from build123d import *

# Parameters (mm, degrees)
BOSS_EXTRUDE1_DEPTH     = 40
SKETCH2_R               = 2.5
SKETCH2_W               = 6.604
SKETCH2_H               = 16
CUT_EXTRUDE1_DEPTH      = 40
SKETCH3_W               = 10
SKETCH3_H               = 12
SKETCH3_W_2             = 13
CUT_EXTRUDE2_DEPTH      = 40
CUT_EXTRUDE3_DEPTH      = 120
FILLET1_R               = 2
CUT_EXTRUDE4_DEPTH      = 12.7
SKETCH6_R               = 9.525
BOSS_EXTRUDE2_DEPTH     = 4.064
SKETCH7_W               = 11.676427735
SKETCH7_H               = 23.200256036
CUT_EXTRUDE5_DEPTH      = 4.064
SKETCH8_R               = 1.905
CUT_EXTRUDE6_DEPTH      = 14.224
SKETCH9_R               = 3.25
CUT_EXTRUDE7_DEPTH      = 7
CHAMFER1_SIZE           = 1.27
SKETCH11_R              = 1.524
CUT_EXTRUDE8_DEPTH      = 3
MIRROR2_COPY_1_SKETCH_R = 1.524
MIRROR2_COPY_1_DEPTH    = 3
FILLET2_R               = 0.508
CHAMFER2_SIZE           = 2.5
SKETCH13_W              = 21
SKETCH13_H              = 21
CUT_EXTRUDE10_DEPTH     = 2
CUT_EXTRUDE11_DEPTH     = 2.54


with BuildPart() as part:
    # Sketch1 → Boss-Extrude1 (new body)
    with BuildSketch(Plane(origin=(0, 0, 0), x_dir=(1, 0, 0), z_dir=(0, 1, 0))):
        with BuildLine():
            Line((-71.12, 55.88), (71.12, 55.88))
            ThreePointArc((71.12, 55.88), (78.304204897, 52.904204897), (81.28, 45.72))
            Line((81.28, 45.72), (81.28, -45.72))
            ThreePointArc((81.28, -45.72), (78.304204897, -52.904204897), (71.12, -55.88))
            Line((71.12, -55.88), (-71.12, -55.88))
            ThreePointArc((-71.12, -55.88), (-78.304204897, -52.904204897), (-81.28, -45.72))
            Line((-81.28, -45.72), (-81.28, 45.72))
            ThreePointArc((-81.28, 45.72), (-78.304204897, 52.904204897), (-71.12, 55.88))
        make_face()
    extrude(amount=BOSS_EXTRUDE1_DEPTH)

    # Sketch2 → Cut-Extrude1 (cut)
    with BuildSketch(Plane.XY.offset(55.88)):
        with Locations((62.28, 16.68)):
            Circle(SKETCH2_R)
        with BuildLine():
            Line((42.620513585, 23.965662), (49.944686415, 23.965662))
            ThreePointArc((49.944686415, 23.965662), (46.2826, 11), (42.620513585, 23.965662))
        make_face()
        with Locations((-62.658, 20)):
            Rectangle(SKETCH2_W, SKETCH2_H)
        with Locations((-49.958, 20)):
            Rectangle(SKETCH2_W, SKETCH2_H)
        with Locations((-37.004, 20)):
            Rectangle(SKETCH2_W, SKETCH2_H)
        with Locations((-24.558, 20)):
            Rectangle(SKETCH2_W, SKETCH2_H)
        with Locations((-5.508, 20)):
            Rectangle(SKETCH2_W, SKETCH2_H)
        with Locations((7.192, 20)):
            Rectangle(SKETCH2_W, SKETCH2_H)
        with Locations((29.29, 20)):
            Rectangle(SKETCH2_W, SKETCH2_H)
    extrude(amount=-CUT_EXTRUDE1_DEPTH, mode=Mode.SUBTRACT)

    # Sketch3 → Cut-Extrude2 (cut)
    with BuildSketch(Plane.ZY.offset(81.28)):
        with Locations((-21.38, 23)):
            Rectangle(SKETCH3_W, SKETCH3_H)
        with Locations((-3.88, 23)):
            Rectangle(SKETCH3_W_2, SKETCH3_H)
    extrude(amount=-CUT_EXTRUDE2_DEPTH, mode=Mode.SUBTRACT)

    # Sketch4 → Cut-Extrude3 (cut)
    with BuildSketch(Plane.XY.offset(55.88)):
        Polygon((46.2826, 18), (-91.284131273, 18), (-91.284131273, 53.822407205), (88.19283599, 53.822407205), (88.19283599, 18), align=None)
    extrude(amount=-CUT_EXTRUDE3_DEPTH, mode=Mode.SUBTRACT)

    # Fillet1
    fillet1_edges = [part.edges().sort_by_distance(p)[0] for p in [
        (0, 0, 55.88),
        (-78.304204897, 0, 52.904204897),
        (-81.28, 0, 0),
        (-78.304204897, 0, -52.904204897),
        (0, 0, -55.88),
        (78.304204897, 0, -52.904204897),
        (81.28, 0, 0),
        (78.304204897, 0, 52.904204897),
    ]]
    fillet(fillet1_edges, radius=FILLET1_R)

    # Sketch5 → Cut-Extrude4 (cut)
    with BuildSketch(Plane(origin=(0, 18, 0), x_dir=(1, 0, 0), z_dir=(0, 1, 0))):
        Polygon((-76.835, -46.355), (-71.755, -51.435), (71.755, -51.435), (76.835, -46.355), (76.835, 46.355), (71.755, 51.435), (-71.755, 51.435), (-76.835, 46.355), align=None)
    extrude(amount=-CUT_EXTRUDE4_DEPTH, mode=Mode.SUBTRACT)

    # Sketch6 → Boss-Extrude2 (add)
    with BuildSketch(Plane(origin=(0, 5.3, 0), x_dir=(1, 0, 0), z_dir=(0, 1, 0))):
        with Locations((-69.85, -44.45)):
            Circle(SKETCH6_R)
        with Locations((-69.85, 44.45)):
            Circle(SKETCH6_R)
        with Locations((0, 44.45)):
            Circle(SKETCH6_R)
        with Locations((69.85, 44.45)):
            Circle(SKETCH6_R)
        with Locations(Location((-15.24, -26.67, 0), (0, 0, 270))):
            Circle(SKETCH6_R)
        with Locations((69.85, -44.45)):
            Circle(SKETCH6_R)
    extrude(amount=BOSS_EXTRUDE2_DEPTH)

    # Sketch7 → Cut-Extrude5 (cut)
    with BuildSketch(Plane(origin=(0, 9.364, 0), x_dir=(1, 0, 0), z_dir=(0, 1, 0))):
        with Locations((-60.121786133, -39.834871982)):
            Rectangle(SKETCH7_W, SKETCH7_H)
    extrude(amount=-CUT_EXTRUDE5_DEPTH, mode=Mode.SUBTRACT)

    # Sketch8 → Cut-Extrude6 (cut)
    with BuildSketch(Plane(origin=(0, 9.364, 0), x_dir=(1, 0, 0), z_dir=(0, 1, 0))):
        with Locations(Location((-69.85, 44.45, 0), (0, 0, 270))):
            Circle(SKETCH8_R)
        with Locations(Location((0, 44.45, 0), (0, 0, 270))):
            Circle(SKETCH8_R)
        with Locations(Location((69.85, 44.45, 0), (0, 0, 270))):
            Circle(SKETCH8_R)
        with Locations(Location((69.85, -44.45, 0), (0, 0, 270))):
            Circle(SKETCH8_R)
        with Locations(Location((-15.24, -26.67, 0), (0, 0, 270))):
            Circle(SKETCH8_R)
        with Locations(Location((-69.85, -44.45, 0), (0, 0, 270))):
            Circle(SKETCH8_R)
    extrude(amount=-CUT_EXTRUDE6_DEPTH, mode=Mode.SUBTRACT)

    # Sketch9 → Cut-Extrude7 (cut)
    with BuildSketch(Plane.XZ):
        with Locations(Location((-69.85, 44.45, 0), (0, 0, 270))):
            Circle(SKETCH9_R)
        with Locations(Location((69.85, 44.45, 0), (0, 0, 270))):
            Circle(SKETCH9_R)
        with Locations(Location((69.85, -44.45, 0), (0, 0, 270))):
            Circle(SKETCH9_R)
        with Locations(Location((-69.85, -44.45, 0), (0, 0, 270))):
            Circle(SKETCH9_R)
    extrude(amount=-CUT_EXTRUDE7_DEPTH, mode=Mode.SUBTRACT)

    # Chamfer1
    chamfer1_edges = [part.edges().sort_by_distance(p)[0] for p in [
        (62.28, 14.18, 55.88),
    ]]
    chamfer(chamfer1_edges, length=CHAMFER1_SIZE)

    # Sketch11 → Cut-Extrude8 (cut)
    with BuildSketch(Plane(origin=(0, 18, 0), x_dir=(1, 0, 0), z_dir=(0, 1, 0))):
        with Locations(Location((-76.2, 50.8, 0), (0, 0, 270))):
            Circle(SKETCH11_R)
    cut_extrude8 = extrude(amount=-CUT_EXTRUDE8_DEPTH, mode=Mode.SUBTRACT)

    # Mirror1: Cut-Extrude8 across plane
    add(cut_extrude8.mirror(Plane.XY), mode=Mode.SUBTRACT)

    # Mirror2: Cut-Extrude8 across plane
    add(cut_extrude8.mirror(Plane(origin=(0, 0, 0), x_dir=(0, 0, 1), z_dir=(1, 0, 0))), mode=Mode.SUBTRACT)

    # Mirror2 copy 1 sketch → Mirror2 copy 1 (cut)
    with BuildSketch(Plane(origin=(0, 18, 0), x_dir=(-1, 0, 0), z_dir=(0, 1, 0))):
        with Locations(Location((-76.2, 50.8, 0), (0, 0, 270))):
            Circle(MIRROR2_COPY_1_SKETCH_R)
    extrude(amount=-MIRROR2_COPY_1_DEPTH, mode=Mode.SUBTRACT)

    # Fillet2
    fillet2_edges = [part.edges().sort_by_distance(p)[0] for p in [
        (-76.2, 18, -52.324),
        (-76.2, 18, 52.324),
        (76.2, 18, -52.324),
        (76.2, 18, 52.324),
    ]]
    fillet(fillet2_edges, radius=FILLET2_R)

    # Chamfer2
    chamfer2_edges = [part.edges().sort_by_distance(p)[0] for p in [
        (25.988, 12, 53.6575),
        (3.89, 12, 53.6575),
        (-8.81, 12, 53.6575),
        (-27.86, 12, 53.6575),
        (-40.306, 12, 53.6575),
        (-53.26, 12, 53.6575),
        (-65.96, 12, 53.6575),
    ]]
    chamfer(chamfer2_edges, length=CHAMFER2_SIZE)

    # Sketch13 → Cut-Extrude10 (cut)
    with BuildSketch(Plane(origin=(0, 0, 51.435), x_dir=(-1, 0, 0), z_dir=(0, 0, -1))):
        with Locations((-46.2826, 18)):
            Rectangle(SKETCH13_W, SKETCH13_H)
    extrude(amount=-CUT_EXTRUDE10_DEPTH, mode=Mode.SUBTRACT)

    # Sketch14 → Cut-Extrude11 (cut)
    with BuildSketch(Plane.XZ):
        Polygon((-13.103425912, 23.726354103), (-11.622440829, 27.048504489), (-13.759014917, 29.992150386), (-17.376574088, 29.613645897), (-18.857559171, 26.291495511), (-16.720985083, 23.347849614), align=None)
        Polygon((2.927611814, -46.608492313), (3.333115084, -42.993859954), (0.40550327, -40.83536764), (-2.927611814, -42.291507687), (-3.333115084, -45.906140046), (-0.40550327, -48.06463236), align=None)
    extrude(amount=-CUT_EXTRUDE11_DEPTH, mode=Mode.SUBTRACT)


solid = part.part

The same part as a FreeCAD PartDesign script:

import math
import FreeCAD as App
import Part
import Sketcher
from FreeCAD import Vector
Q = App.Units.Quantity


def edges_at(feature, points):
    """Names of the edges that pass closest to the given points."""
    edges = feature.Shape.Edges
    near = lambda p: min(range(len(edges)), key=lambda i: edges[i].distToShape(Part.Vertex(*p))[0])
    return sorted({f"Edge{near(p) + 1}" for p in points})

doc = App.newDocument("Part")
params = doc.addObject("Spreadsheet::Sheet", "Params")
for row, (alias, value) in enumerate([
    ("sketch1_radius", "0.4 in"),
    ("sketch1_width", "5.6 in"),
    ("sketch1_height", "3.6 in"),
    ("pad1_length", "40 mm"),
    ("sketch2_width", "0.26 in"),
    ("pocket1_length", "40 mm"),
    ("pocket2_length", "40 mm"),
    ("pocket3_length", "120 mm"),
    ("fillet_radius", "2 mm"),
    ("sketch5_width", "5.65 in"),
    ("sketch5_height", "3.65 in"),
    ("pocket4_length", "0.5 in"),
    ("sketch6_diameter", "0.75 in"),
    ("pad2_length", "0.16 in"),
    ("pocket5_length", "0.16 in"),
    ("sketch8_diameter", "0.15 in"),
    ("pocket6_length", "0.56 in"),
    ("pocket7_length", "7 mm"),
    ("chamfer_size", "0.05 in"),
    ("sketch10_diameter", "0.12 in"),
    ("pocket8_length", "3 mm"),
    ("sketch11_diameter", "0.12 in"),
    ("pocket9_length", "3 mm"),
    ("fillet2_radius", "0.02 in"),
    ("chamfer2_size", "2.5 mm"),
    ("pocket10_length", "2 mm"),
    ("pocket11_length", "0.1 in"),
], start=1):
    params.set(f"A{row}", alias)
    params.set(f"B{row}", "=" + value)
    params.setAlias(f"B{row}", alias)

body = doc.addObject("PartDesign::Body", "Body")

sketch1 = doc.addObject("Sketcher::SketchObject", "Sketch")
body.addObject(sketch1)
sketch1.AttachmentSupport = (doc.XZ_Plane, [""])
sketch1.MapMode = "FlatFace"
sketch1.addGeometry(Part.LineSegment(Vector(71.12, -55.88, 0), Vector(-71.12, -55.88, 0)), False)
sketch1.addGeometry(Part.ArcOfCircle(Part.Circle(Vector(-71.12, -45.72, 0), Vector(0, 0, 1), 10.16), math.radians(180), math.radians(270)), False)
sketch1.addGeometry(Part.LineSegment(Vector(-81.28, -45.72, 0), Vector(-81.28, 45.72, 0)), False)
sketch1.addGeometry(Part.ArcOfCircle(Part.Circle(Vector(-71.12, 45.72, 0), Vector(0, 0, 1), 10.16), math.radians(90), math.radians(180)), False)
sketch1.addGeometry(Part.LineSegment(Vector(-71.12, 55.88, 0), Vector(71.12, 55.88, 0)), False)
sketch1.addGeometry(Part.ArcOfCircle(Part.Circle(Vector(71.12, 45.72, 0), Vector(0, 0, 1), 10.16), math.radians(0), math.radians(90)), False)
sketch1.addGeometry(Part.LineSegment(Vector(81.28, 45.72, 0), Vector(81.28, -45.72, 0)), False)
sketch1.addGeometry(Part.ArcOfCircle(Part.Circle(Vector(71.12, -45.72, 0), Vector(0, 0, 1), 10.16), math.radians(-90), math.radians(0)), False)
sketch1.addConstraint(Sketcher.Constraint("Tangent", 0, 2, 1, 2))
sketch1.addConstraint(Sketcher.Constraint("Tangent", 1, 1, 2, 1))
sketch1.addConstraint(Sketcher.Constraint("Tangent", 2, 2, 3, 2))
sketch1.addConstraint(Sketcher.Constraint("Tangent", 3, 1, 4, 1))
sketch1.addConstraint(Sketcher.Constraint("Tangent", 4, 2, 5, 2))
sketch1.addConstraint(Sketcher.Constraint("Tangent", 5, 1, 6, 1))
sketch1.addConstraint(Sketcher.Constraint("Tangent", 6, 2, 7, 2))
sketch1.addConstraint(Sketcher.Constraint("Tangent", 7, 1, 0, 1))
sketch1.addConstraint(Sketcher.Constraint("Horizontal", 0))
sketch1.addConstraint(Sketcher.Constraint("Vertical", 2))
sketch1.addConstraint(Sketcher.Constraint("Horizontal", 4))
sketch1.addConstraint(Sketcher.Constraint("Vertical", 6))
sketch1.addConstraint(Sketcher.Constraint("Equal", 1, 3))
sketch1.addConstraint(Sketcher.Constraint("Equal", 3, 5))
sketch1.addConstraint(Sketcher.Constraint("Equal", 5, 7))
sketch1.addConstraint(Sketcher.Constraint("Symmetric", 1, 3, 5, 3, -1, 1))
sketch1.addConstraint(Sketcher.Constraint("Radius", 1, Q("0.4 in")))
sketch1.addConstraint(Sketcher.Constraint("DistanceX", 0, 2, 0, 1, Q("5.6 in")))
sketch1.addConstraint(Sketcher.Constraint("DistanceY", 2, 1, 2, 2, Q("3.6 in")))
sketch1.setExpression("Constraints[16]", "Params.sketch1_radius")
sketch1.setExpression("Constraints[17]", "Params.sketch1_width")
sketch1.setExpression("Constraints[18]", "Params.sketch1_height")
pad1 = doc.addObject("PartDesign::Pad", "Pad")
body.addObject(pad1)
pad1.Profile = sketch1
pad1.setExpression("Length", "Params.pad1_length")
pad1.Reversed = True

sketch2 = doc.addObject("Sketcher::SketchObject", "Sketch001")
body.addObject(sketch2)
sketch2.AttachmentSupport = (doc.XY_Plane, [""])
sketch2.MapMode = "FlatFace"
sketch2.AttachmentOffset = App.Placement(Vector(0, 0, 2.2 * 25.4), App.Rotation())
sketch2.addGeometry(Part.Circle(Vector(62.28, 16.68, 0), Vector(0, 0, 1), 2.5), False)
sketch2.addGeometry(Part.LineSegment(Vector(49.944686, 23.965662, 0), Vector(42.620514, 23.965662, 0)), False)
sketch2.addGeometry(Part.ArcOfCircle(Part.Circle(Vector(46.2826, 18, 0), Vector(0, 0, 1), 7), math.radians(121.544135), math.radians(418.455865)), False)
sketch2.addGeometry(Part.LineSegment(Vector(-65.96, 28, 0), Vector(-65.96, 12, 0)), False)
sketch2.addGeometry(Part.LineSegment(Vector(-65.96, 12, 0), Vector(-59.356, 12, 0)), False)
sketch2.addGeometry(Part.LineSegment(Vector(-59.356, 12, 0), Vector(-59.356, 28, 0)), False)
sketch2.addGeometry(Part.LineSegment(Vector(-59.356, 28, 0), Vector(-65.96, 28, 0)), False)
sketch2.addGeometry(Part.LineSegment(Vector(-53.26, 28, 0), Vector(-53.26, 12, 0)), False)
sketch2.addGeometry(Part.LineSegment(Vector(-53.26, 12, 0), Vector(-46.656, 12, 0)), False)
sketch2.addGeometry(Part.LineSegment(Vector(-46.656, 12, 0), Vector(-46.656, 28, 0)), False)
sketch2.addGeometry(Part.LineSegment(Vector(-46.656, 28, 0), Vector(-53.26, 28, 0)), False)
sketch2.addGeometry(Part.LineSegment(Vector(-40.306, 28, 0), Vector(-40.306, 12, 0)), False)
sketch2.addGeometry(Part.LineSegment(Vector(-40.306, 12, 0), Vector(-33.702, 12, 0)), False)
sketch2.addGeometry(Part.LineSegment(Vector(-33.702, 12, 0), Vector(-33.702, 28, 0)), False)
sketch2.addGeometry(Part.LineSegment(Vector(-33.702, 28, 0), Vector(-40.306, 28, 0)), False)
sketch2.addGeometry(Part.LineSegment(Vector(-27.86, 28, 0), Vector(-27.86, 12, 0)), False)
sketch2.addGeometry(Part.LineSegment(Vector(-27.86, 12, 0), Vector(-21.256, 12, 0)), False)
sketch2.addGeometry(Part.LineSegment(Vector(-21.256, 12, 0), Vector(-21.256, 28, 0)), False)
sketch2.addGeometry(Part.LineSegment(Vector(-21.256, 28, 0), Vector(-27.86, 28, 0)), False)
sketch2.addGeometry(Part.LineSegment(Vector(-8.81, 28, 0), Vector(-8.81, 12, 0)), False)
sketch2.addGeometry(Part.LineSegment(Vector(-8.81, 12, 0), Vector(-2.206, 12, 0)), False)
sketch2.addGeometry(Part.LineSegment(Vector(-2.206, 12, 0), Vector(-2.206, 28, 0)), False)
sketch2.addGeometry(Part.LineSegment(Vector(-2.206, 28, 0), Vector(-8.81, 28, 0)), False)
sketch2.addGeometry(Part.LineSegment(Vector(3.89, 28, 0), Vector(3.89, 12, 0)), False)
sketch2.addGeometry(Part.LineSegment(Vector(3.89, 12, 0), Vector(10.494, 12, 0)), False)
sketch2.addGeometry(Part.LineSegment(Vector(10.494, 12, 0), Vector(10.494, 28, 0)), False)
sketch2.addGeometry(Part.LineSegment(Vector(10.494, 28, 0), Vector(3.89, 28, 0)), False)
sketch2.addGeometry(Part.LineSegment(Vector(25.988, 28, 0), Vector(25.988, 12, 0)), False)
sketch2.addGeometry(Part.LineSegment(Vector(25.988, 12, 0), Vector(32.592, 12, 0)), False)
sketch2.addGeometry(Part.LineSegment(Vector(32.592, 12, 0), Vector(32.592, 28, 0)), False)
sketch2.addGeometry(Part.LineSegment(Vector(32.592, 28, 0), Vector(25.988, 28, 0)), False)
sketch2.addConstraint(Sketcher.Constraint("Coincident", 1, 1, 2, 2))
sketch2.addConstraint(Sketcher.Constraint("Coincident", 2, 1, 1, 2))
sketch2.addConstraint(Sketcher.Constraint("Coincident", 3, 2, 4, 1))
sketch2.addConstraint(Sketcher.Constraint("Coincident", 4, 2, 5, 1))
sketch2.addConstraint(Sketcher.Constraint("Coincident", 5, 2, 6, 1))
sketch2.addConstraint(Sketcher.Constraint("Coincident", 6, 2, 3, 1))
sketch2.addConstraint(Sketcher.Constraint("Coincident", 7, 2, 8, 1))
sketch2.addConstraint(Sketcher.Constraint("Coincident", 8, 2, 9, 1))
sketch2.addConstraint(Sketcher.Constraint("Coincident", 9, 2, 10, 1))
sketch2.addConstraint(Sketcher.Constraint("Coincident", 10, 2, 7, 1))
sketch2.addConstraint(Sketcher.Constraint("Coincident", 11, 2, 12, 1))
sketch2.addConstraint(Sketcher.Constraint("Coincident", 12, 2, 13, 1))
sketch2.addConstraint(Sketcher.Constraint("Coincident", 13, 2, 14, 1))
sketch2.addConstraint(Sketcher.Constraint("Coincident", 14, 2, 11, 1))
sketch2.addConstraint(Sketcher.Constraint("Coincident", 15, 2, 16, 1))
sketch2.addConstraint(Sketcher.Constraint("Coincident", 16, 2, 17, 1))
sketch2.addConstraint(Sketcher.Constraint("Coincident", 17, 2, 18, 1))
sketch2.addConstraint(Sketcher.Constraint("Coincident", 18, 2, 15, 1))
sketch2.addConstraint(Sketcher.Constraint("Coincident", 19, 2, 20, 1))
sketch2.addConstraint(Sketcher.Constraint("Coincident", 20, 2, 21, 1))
sketch2.addConstraint(Sketcher.Constraint("Coincident", 21, 2, 22, 1))
sketch2.addConstraint(Sketcher.Constraint("Coincident", 22, 2, 19, 1))
sketch2.addConstraint(Sketcher.Constraint("Coincident", 23, 2, 24, 1))
sketch2.addConstraint(Sketcher.Constraint("Coincident", 24, 2, 25, 1))
sketch2.addConstraint(Sketcher.Constraint("Coincident", 25, 2, 26, 1))
sketch2.addConstraint(Sketcher.Constraint("Coincident", 26, 2, 23, 1))
sketch2.addConstraint(Sketcher.Constraint("Coincident", 27, 2, 28, 1))
sketch2.addConstraint(Sketcher.Constraint("Coincident", 28, 2, 29, 1))
sketch2.addConstraint(Sketcher.Constraint("Coincident", 29, 2, 30, 1))
sketch2.addConstraint(Sketcher.Constraint("Coincident", 30, 2, 27, 1))
sketch2.addConstraint(Sketcher.Constraint("Horizontal", 1))
sketch2.addConstraint(Sketcher.Constraint("Vertical", 3))
sketch2.addConstraint(Sketcher.Constraint("Horizontal", 4))
sketch2.addConstraint(Sketcher.Constraint("Vertical", 5))
sketch2.addConstraint(Sketcher.Constraint("Horizontal", 6))
sketch2.addConstraint(Sketcher.Constraint("Vertical", 7))
sketch2.addConstraint(Sketcher.Constraint("Horizontal", 8))
sketch2.addConstraint(Sketcher.Constraint("Vertical", 9))
sketch2.addConstraint(Sketcher.Constraint("Horizontal", 10))
sketch2.addConstraint(Sketcher.Constraint("Vertical", 11))
sketch2.addConstraint(Sketcher.Constraint("Horizontal", 12))
sketch2.addConstraint(Sketcher.Constraint("Vertical", 13))
sketch2.addConstraint(Sketcher.Constraint("Horizontal", 14))
sketch2.addConstraint(Sketcher.Constraint("Vertical", 15))
sketch2.addConstraint(Sketcher.Constraint("Horizontal", 16))
sketch2.addConstraint(Sketcher.Constraint("Vertical", 17))
sketch2.addConstraint(Sketcher.Constraint("Horizontal", 18))
sketch2.addConstraint(Sketcher.Constraint("Vertical", 19))
sketch2.addConstraint(Sketcher.Constraint("Horizontal", 20))
sketch2.addConstraint(Sketcher.Constraint("Vertical", 21))
sketch2.addConstraint(Sketcher.Constraint("Horizontal", 22))
sketch2.addConstraint(Sketcher.Constraint("Vertical", 23))
sketch2.addConstraint(Sketcher.Constraint("Horizontal", 24))
sketch2.addConstraint(Sketcher.Constraint("Vertical", 25))
sketch2.addConstraint(Sketcher.Constraint("Horizontal", 26))
sketch2.addConstraint(Sketcher.Constraint("Vertical", 27))
sketch2.addConstraint(Sketcher.Constraint("Horizontal", 28))
sketch2.addConstraint(Sketcher.Constraint("Vertical", 29))
sketch2.addConstraint(Sketcher.Constraint("Horizontal", 30))
sketch2.addConstraint(Sketcher.Constraint("Horizontal", 4, 2, 7, 2))
sketch2.addConstraint(Sketcher.Constraint("Horizontal", 6, 2, 9, 2))
sketch2.addConstraint(Sketcher.Constraint("Horizontal", 8, 2, 11, 2))
sketch2.addConstraint(Sketcher.Constraint("Horizontal", 10, 2, 13, 2))
sketch2.addConstraint(Sketcher.Constraint("Horizontal", 12, 2, 15, 2))
sketch2.addConstraint(Sketcher.Constraint("Horizontal", 14, 2, 17, 2))
sketch2.addConstraint(Sketcher.Constraint("Horizontal", 16, 2, 19, 2))
sketch2.addConstraint(Sketcher.Constraint("Horizontal", 18, 2, 21, 2))
sketch2.addConstraint(Sketcher.Constraint("Horizontal", 20, 2, 23, 2))
sketch2.addConstraint(Sketcher.Constraint("Horizontal", 22, 2, 25, 2))
sketch2.addConstraint(Sketcher.Constraint("Horizontal", 24, 2, 27, 2))
sketch2.addConstraint(Sketcher.Constraint("Horizontal", 26, 2, 29, 2))
sketch2.addConstraint(Sketcher.Constraint("Equal", 6, 8))
sketch2.addConstraint(Sketcher.Constraint("Equal", 10, 12))
sketch2.addConstraint(Sketcher.Constraint("Equal", 14, 16))
sketch2.addConstraint(Sketcher.Constraint("Equal", 18, 20))
sketch2.addConstraint(Sketcher.Constraint("Equal", 22, 24))
sketch2.addConstraint(Sketcher.Constraint("Equal", 26, 28))
sketch2.addConstraint(Sketcher.Constraint("DistanceX", 4, 1, 4, 2, Q("0.26 in")))
sketch2.addConstraint(Sketcher.Constraint("DistanceX", 3, 2, 7, 2, Q("0.5 in")))
sketch2.addConstraint(Sketcher.Constraint("DistanceX", 19, 2, 23, 2, Q("0.5 in")))
sketch2.addConstraint(Sketcher.Constraint("Diameter", 0, Q("5 mm")))
sketch2.addConstraint(Sketcher.Constraint("Radius", 2, Q("7 mm")))
sketch2.addConstraint(Sketcher.Constraint("DistanceX", 8, 2, 11, 2, Q("0.25 in")))
sketch2.addConstraint(Sketcher.Constraint("DistanceX", 12, 2, 15, 2, Q("0.23 in")))
sketch2.addConstraint(Sketcher.Constraint("DistanceX", 16, 2, 19, 2, Q("0.49 in")))
sketch2.addConstraint(Sketcher.Constraint("DistanceX", 24, 2, 27, 2, Q("0.61 in")))
sketch2.addConstraint(Sketcher.Constraint("DistanceX", 3, 2, 2, 3, Q("4.419 in")))
sketch2.addConstraint(Sketcher.Constraint("DistanceY", 3, 2, 3, 1, Q("16 mm")))
sketch2.addConstraint(Sketcher.Constraint("DistanceX", -1, 1, 0, 3, Q("62.28 mm")))
sketch2.addConstraint(Sketcher.Constraint("DistanceY", -1, 1, 0, 3, Q("16.68 mm")))
sketch2.addConstraint(Sketcher.Constraint("DistanceX", -1, 1, 2, 3, Q("46.2826 mm")))
sketch2.addConstraint(Sketcher.Constraint("DistanceY", -1, 1, 2, 3, Q("18 mm")))
sketch2.addConstraint(Sketcher.Constraint("DistanceY", -1, 1, 3, 2, Q("12 mm")))
sketch2.addConstraint(Sketcher.Constraint("DistanceX", 1, 2, 1, 1, Q("7.324173 mm")))
sketch2.setExpression("Constraints[77]", "Params.sketch2_width")
pocket1 = doc.addObject("PartDesign::Pocket", "Pocket")
body.addObject(pocket1)
pocket1.Profile = sketch2
pocket1.setExpression("Length", "Params.pocket1_length")

sketch3 = doc.addObject("Sketcher::SketchObject", "Sketch002")
body.addObject(sketch3)
sketch3.AttachmentSupport = (doc.YZ_Plane, [""])
sketch3.MapMode = "FlatFace"
sketch3.AttachmentOffset = App.Placement(Vector(0, 0, -3.2 * 25.4), App.Rotation())
sketch3.addGeometry(Part.LineSegment(Vector(29, -26.38, 0), Vector(17, -26.38, 0)), False)
sketch3.addGeometry(Part.LineSegment(Vector(17, -26.38, 0), Vector(17, -16.38, 0)), False)
sketch3.addGeometry(Part.LineSegment(Vector(17, -16.38, 0), Vector(29, -16.38, 0)), False)
sketch3.addGeometry(Part.LineSegment(Vector(29, -16.38, 0), Vector(29, -26.38, 0)), False)
sketch3.addGeometry(Part.LineSegment(Vector(29, -10.38, 0), Vector(17, -10.38, 0)), False)
sketch3.addGeometry(Part.LineSegment(Vector(17, -10.38, 0), Vector(17, 2.62, 0)), False)
sketch3.addGeometry(Part.LineSegment(Vector(17, 2.62, 0), Vector(29, 2.62, 0)), False)
sketch3.addGeometry(Part.LineSegment(Vector(29, 2.62, 0), Vector(29, -10.38, 0)), False)
sketch3.addConstraint(Sketcher.Constraint("Coincident", 0, 2, 1, 1))
sketch3.addConstraint(Sketcher.Constraint("Coincident", 1, 2, 2, 1))
sketch3.addConstraint(Sketcher.Constraint("Coincident", 2, 2, 3, 1))
sketch3.addConstraint(Sketcher.Constraint("Coincident", 3, 2, 0, 1))
sketch3.addConstraint(Sketcher.Constraint("Coincident", 4, 2, 5, 1))
sketch3.addConstraint(Sketcher.Constraint("Coincident", 5, 2, 6, 1))
sketch3.addConstraint(Sketcher.Constraint("Coincident", 6, 2, 7, 1))
sketch3.addConstraint(Sketcher.Constraint("Coincident", 7, 2, 4, 1))
sketch3.addConstraint(Sketcher.Constraint("Horizontal", 0))
sketch3.addConstraint(Sketcher.Constraint("Vertical", 1))
sketch3.addConstraint(Sketcher.Constraint("Horizontal", 2))
sketch3.addConstraint(Sketcher.Constraint("Vertical", 3))
sketch3.addConstraint(Sketcher.Constraint("Horizontal", 4))
sketch3.addConstraint(Sketcher.Constraint("Vertical", 5))
sketch3.addConstraint(Sketcher.Constraint("Horizontal", 6))
sketch3.addConstraint(Sketcher.Constraint("Vertical", 7))
sketch3.addConstraint(Sketcher.Constraint("Vertical", 1, 2, 4, 2))
sketch3.addConstraint(Sketcher.Constraint("Vertical", 3, 2, 6, 2))
sketch3.addConstraint(Sketcher.Constraint("DistanceX", 0, 2, 0, 1, Q("12 mm")))
sketch3.addConstraint(Sketcher.Constraint("DistanceY", 1, 1, 1, 2, Q("10 mm")))
sketch3.addConstraint(Sketcher.Constraint("DistanceY", 5, 1, 5, 2, Q("13 mm")))
sketch3.addConstraint(Sketcher.Constraint("DistanceX", -1, 1, 0, 2, Q("17 mm")))
sketch3.addConstraint(Sketcher.Constraint("DistanceY", 0, 2, -1, 1, Q("26.38 mm")))
sketch3.addConstraint(Sketcher.Constraint("DistanceY", 4, 2, -1, 1, Q("10.38 mm")))
pocket2 = doc.addObject("PartDesign::Pocket", "Pocket001")
body.addObject(pocket2)
pocket2.Profile = sketch3
pocket2.setExpression("Length", "Params.pocket2_length")
pocket2.Reversed = True

sketch4 = doc.addObject("Sketcher::SketchObject", "Sketch003")
body.addObject(sketch4)
sketch4.AttachmentSupport = (doc.XY_Plane, [""])
sketch4.MapMode = "FlatFace"
sketch4.AttachmentOffset = App.Placement(Vector(0, 0, 2.2 * 25.4), App.Rotation())
sketch4.addGeometry(Part.LineSegment(Vector(-91.284131, 18, 0), Vector(88.192836, 18, 0)), False)
sketch4.addGeometry(Part.LineSegment(Vector(88.192836, 18, 0), Vector(88.192836, 53.822407, 0)), False)
sketch4.addGeometry(Part.LineSegment(Vector(88.192836, 53.822407, 0), Vector(-91.284131, 53.822407, 0)), False)
sketch4.addGeometry(Part.LineSegment(Vector(-91.284131, 53.822407, 0), Vector(-91.284131, 18, 0)), False)
sketch4.addConstraint(Sketcher.Constraint("Coincident", 0, 2, 1, 1))
sketch4.addConstraint(Sketcher.Constraint("Coincident", 1, 2, 2, 1))
sketch4.addConstraint(Sketcher.Constraint("Coincident", 2, 2, 3, 1))
sketch4.addConstraint(Sketcher.Constraint("Coincident", 3, 2, 0, 1))
sketch4.addConstraint(Sketcher.Constraint("Horizontal", 0))
sketch4.addConstraint(Sketcher.Constraint("Vertical", 1))
sketch4.addConstraint(Sketcher.Constraint("Horizontal", 2))
sketch4.addConstraint(Sketcher.Constraint("Vertical", 3))
sketch4.addConstraint(Sketcher.Constraint("DistanceY", -1, 1, 0, 2, Q("18 mm")))
sketch4.addConstraint(Sketcher.Constraint("DistanceX", 0, 1, 0, 2, Q("179.476967 mm")))
sketch4.addConstraint(Sketcher.Constraint("DistanceY", 1, 1, 1, 2, Q("35.822407 mm")))
sketch4.addConstraint(Sketcher.Constraint("DistanceX", 2, 2, -1, 1, Q("91.284131 mm")))
pocket3 = doc.addObject("PartDesign::Pocket", "Pocket002")
body.addObject(pocket3)
pocket3.Profile = sketch4
pocket3.setExpression("Length", "Params.pocket3_length")
doc.recompute()

fillet = doc.addObject("PartDesign::Fillet", "Fillet")
body.addObject(fillet)
fillet.Base = (pocket3, edges_at(pocket3, [
    (0, 0, 55.88),
    (-78.304, 0, 52.904),
    (-81.28, 0, 0),
    (-78.304, 0, -52.904),
    (0, 0, -55.88),
    (78.304, 0, -52.904),
    (81.28, 0, 0),
    (78.304, 0, 52.904),
]))
fillet.setExpression("Radius", "Params.fillet_radius")

sketch5 = doc.addObject("Sketcher::SketchObject", "Sketch004")
body.addObject(sketch5)
sketch5.AttachmentSupport = (doc.XZ_Plane, [""])
sketch5.MapMode = "FlatFace"
sketch5.AttachmentOffset = App.Placement(Vector(0, 0, -18), App.Rotation())
sketch5.addGeometry(Part.LineSegment(Vector(-76.835, 46.355, 0), Vector(-71.755, 51.435, 0)), False)
sketch5.addGeometry(Part.LineSegment(Vector(-71.755, 51.435, 0), Vector(71.755, 51.435, 0)), False)
sketch5.addGeometry(Part.LineSegment(Vector(71.755, 51.435, 0), Vector(76.835, 46.355, 0)), False)
sketch5.addGeometry(Part.LineSegment(Vector(76.835, 46.355, 0), Vector(76.835, -46.355, 0)), False)
sketch5.addGeometry(Part.LineSegment(Vector(76.835, -46.355, 0), Vector(71.755, -51.435, 0)), False)
sketch5.addGeometry(Part.LineSegment(Vector(71.755, -51.435, 0), Vector(-71.755, -51.435, 0)), False)
sketch5.addGeometry(Part.LineSegment(Vector(-71.755, -51.435, 0), Vector(-76.835, -46.355, 0)), False)
sketch5.addGeometry(Part.LineSegment(Vector(-76.835, -46.355, 0), Vector(-76.835, 46.355, 0)), False)
sketch5.addConstraint(Sketcher.Constraint("Coincident", 0, 2, 1, 1))
sketch5.addConstraint(Sketcher.Constraint("Coincident", 1, 2, 2, 1))
sketch5.addConstraint(Sketcher.Constraint("Coincident", 2, 2, 3, 1))
sketch5.addConstraint(Sketcher.Constraint("Coincident", 3, 2, 4, 1))
sketch5.addConstraint(Sketcher.Constraint("Coincident", 4, 2, 5, 1))
sketch5.addConstraint(Sketcher.Constraint("Coincident", 5, 2, 6, 1))
sketch5.addConstraint(Sketcher.Constraint("Coincident", 6, 2, 7, 1))
sketch5.addConstraint(Sketcher.Constraint("Coincident", 7, 2, 0, 1))
sketch5.addConstraint(Sketcher.Constraint("Horizontal", 1))
sketch5.addConstraint(Sketcher.Constraint("Vertical", 3))
sketch5.addConstraint(Sketcher.Constraint("Horizontal", 5))
sketch5.addConstraint(Sketcher.Constraint("Vertical", 7))
sketch5.addConstraint(Sketcher.Constraint("Symmetric", 0, 2, 4, 2, -1, 1))
sketch5.addConstraint(Sketcher.Constraint("Symmetric", 2, 2, 6, 2, -1, 1))
sketch5.addConstraint(Sketcher.Constraint("Perpendicular", 0, 2))
sketch5.addConstraint(Sketcher.Constraint("Perpendicular", 2, 4))
sketch5.addConstraint(Sketcher.Constraint("Perpendicular", 4, 6))
sketch5.addConstraint(Sketcher.Constraint("Horizontal", 3, 2, 6, 2))
sketch5.addConstraint(Sketcher.Constraint("Vertical", 1, 2, 4, 2))
sketch5.addConstraint(Sketcher.Constraint("DistanceX", 1, 1, 1, 2, Q("5.65 in")))
sketch5.addConstraint(Sketcher.Constraint("DistanceY", 3, 2, 3, 1, Q("3.65 in")))
sketch5.addConstraint(Sketcher.Constraint("DistanceX", 1, 2, 2, 2, Q("0.2 in")))
sketch5.setExpression("Constraints[19]", "Params.sketch5_width")
sketch5.setExpression("Constraints[20]", "Params.sketch5_height")
pocket4 = doc.addObject("PartDesign::Pocket", "Pocket003")
body.addObject(pocket4)
pocket4.Profile = sketch5
pocket4.setExpression("Length", "Params.pocket4_length")
pocket4.Reversed = True

sketch6 = doc.addObject("Sketcher::SketchObject", "Sketch005")
body.addObject(sketch6)
sketch6.AttachmentSupport = (doc.XZ_Plane, [""])
sketch6.MapMode = "FlatFace"
sketch6.AttachmentOffset = App.Placement(Vector(0, 0, -5.3), App.Rotation())
sketch6.addGeometry(Part.Circle(Vector(-69.85, 44.45, 0), Vector(0, 0, 1), 9.525), False)
sketch6.addGeometry(Part.Circle(Vector(-69.85, -44.45, 0), Vector(0, 0, 1), 9.525), False)
sketch6.addGeometry(Part.Circle(Vector(0, -44.45, 0), Vector(0, 0, 1), 9.525), False)
sketch6.addGeometry(Part.Circle(Vector(69.85, -44.45, 0), Vector(0, 0, 1), 9.525), False)
sketch6.addGeometry(Part.Circle(Vector(-15.24, 26.67, 0), Vector(0, 0, 1), 9.525), False)
sketch6.addGeometry(Part.Circle(Vector(69.85, 44.45, 0), Vector(0, 0, 1), 9.525), False)
sketch6.addConstraint(Sketcher.Constraint("Equal", 0, 1))
sketch6.addConstraint(Sketcher.Constraint("Equal", 1, 2))
sketch6.addConstraint(Sketcher.Constraint("Equal", 2, 3))
sketch6.addConstraint(Sketcher.Constraint("Equal", 3, 4))
sketch6.addConstraint(Sketcher.Constraint("Equal", 4, 5))
sketch6.addConstraint(Sketcher.Constraint("Symmetric", 0, 3, 3, 3, -1, 1))
sketch6.addConstraint(Sketcher.Constraint("Symmetric", 1, 3, 5, 3, -1, 1))
sketch6.addConstraint(Sketcher.Constraint("Symmetric", 1, 3, 3, 3, -2))
sketch6.addConstraint(Sketcher.Constraint("PointOnObject", 2, 3, -2))
sketch6.addConstraint(Sketcher.Constraint("Horizontal", 1, 3, 2, 3))
sketch6.addConstraint(Sketcher.Constraint("Diameter", 0, Q("0.75 in")))
sketch6.addConstraint(Sketcher.Constraint("DistanceX", 4, 3, -1, 1, Q("0.6 in")))
sketch6.addConstraint(Sketcher.Constraint("DistanceY", 1, 3, 0, 3, Q("3.5 in")))
sketch6.addConstraint(Sketcher.Constraint("DistanceX", 1, 3, 3, 3, Q("5.5 in")))
sketch6.addConstraint(Sketcher.Constraint("DistanceY", 4, 3, 0, 3, Q("0.7 in")))
sketch6.setExpression("Constraints[10]", "Params.sketch6_diameter")
pad2 = doc.addObject("PartDesign::Pad", "Pad001")
body.addObject(pad2)
pad2.Profile = sketch6
pad2.setExpression("Length", "Params.pad2_length")
pad2.Reversed = True

sketch7 = doc.addObject("Sketcher::SketchObject", "Sketch006")
body.addObject(sketch7)
sketch7.AttachmentSupport = (doc.XZ_Plane, [""])
sketch7.MapMode = "FlatFace"
sketch7.AttachmentOffset = App.Placement(Vector(0, 0, -9.364), App.Rotation())
sketch7.addGeometry(Part.LineSegment(Vector(-65.96, 28.234744, 0), Vector(-65.96, 51.435, 0)), False)
sketch7.addGeometry(Part.LineSegment(Vector(-65.96, 51.435, 0), Vector(-54.283572, 51.435, 0)), False)
sketch7.addGeometry(Part.LineSegment(Vector(-54.283572, 51.435, 0), Vector(-54.283572, 28.234744, 0)), False)
sketch7.addGeometry(Part.LineSegment(Vector(-54.283572, 28.234744, 0), Vector(-65.96, 28.234744, 0)), False)
sketch7.addConstraint(Sketcher.Constraint("Coincident", 0, 2, 1, 1))
sketch7.addConstraint(Sketcher.Constraint("Coincident", 1, 2, 2, 1))
sketch7.addConstraint(Sketcher.Constraint("Coincident", 2, 2, 3, 1))
sketch7.addConstraint(Sketcher.Constraint("Coincident", 3, 2, 0, 1))
sketch7.addConstraint(Sketcher.Constraint("Vertical", 0))
sketch7.addConstraint(Sketcher.Constraint("Horizontal", 1))
sketch7.addConstraint(Sketcher.Constraint("Vertical", 2))
sketch7.addConstraint(Sketcher.Constraint("Horizontal", 3))
sketch7.addConstraint(Sketcher.Constraint("DistanceY", -1, 1, 0, 2, Q("2.025 in")))
sketch7.addConstraint(Sketcher.Constraint("DistanceX", 0, 2, -1, 1, Q("65.96 mm")))
sketch7.addConstraint(Sketcher.Constraint("DistanceX", 1, 1, 1, 2, Q("11.676428 mm")))
sketch7.addConstraint(Sketcher.Constraint("DistanceY", 0, 1, 0, 2, Q("23.200256 mm")))
pocket5 = doc.addObject("PartDesign::Pocket", "Pocket004")
body.addObject(pocket5)
pocket5.Profile = sketch7
pocket5.setExpression("Length", "Params.pocket5_length")
pocket5.Reversed = True

sketch8 = doc.addObject("Sketcher::SketchObject", "Sketch007")
body.addObject(sketch8)
sketch8.AttachmentSupport = (doc.XZ_Plane, [""])
sketch8.MapMode = "FlatFace"
sketch8.AttachmentOffset = App.Placement(Vector(0, 0, -9.364), App.Rotation())
sketch8.addGeometry(Part.Circle(Vector(-69.85, -44.45, 0), Vector(0, 0, 1), 1.905), False)
sketch8.addGeometry(Part.Circle(Vector(0, -44.45, 0), Vector(0, 0, 1), 1.905), False)
sketch8.addGeometry(Part.Circle(Vector(69.85, -44.45, 0), Vector(0, 0, 1), 1.905), False)
sketch8.addGeometry(Part.Circle(Vector(69.85, 44.45, 0), Vector(0, 0, 1), 1.905), False)
sketch8.addGeometry(Part.Circle(Vector(-15.24, 26.67, 0), Vector(0, 0, 1), 1.905), False)
sketch8.addGeometry(Part.Circle(Vector(-69.85, 44.45, 0), Vector(0, 0, 1), 1.905), False)
sketch8.addConstraint(Sketcher.Constraint("Equal", 0, 1))
sketch8.addConstraint(Sketcher.Constraint("Equal", 1, 2))
sketch8.addConstraint(Sketcher.Constraint("Equal", 2, 3))
sketch8.addConstraint(Sketcher.Constraint("Equal", 3, 4))
sketch8.addConstraint(Sketcher.Constraint("Equal", 4, 5))
sketch8.addConstraint(Sketcher.Constraint("Symmetric", 0, 3, 3, 3, -1, 1))
sketch8.addConstraint(Sketcher.Constraint("Symmetric", 2, 3, 5, 3, -1, 1))
sketch8.addConstraint(Sketcher.Constraint("Symmetric", 0, 3, 2, 3, -2))
sketch8.addConstraint(Sketcher.Constraint("PointOnObject", 1, 3, -2))
sketch8.addConstraint(Sketcher.Constraint("Horizontal", 0, 3, 1, 3))
sketch8.addConstraint(Sketcher.Constraint("Diameter", 0, Q("0.15 in")))
sketch8.addConstraint(Sketcher.Constraint("DistanceX", 4, 3, -1, 1, Q("0.6 in")))
sketch8.addConstraint(Sketcher.Constraint("DistanceX", 0, 3, 2, 3, Q("5.5 in")))
sketch8.addConstraint(Sketcher.Constraint("DistanceY", 2, 3, 3, 3, Q("3.5 in")))
sketch8.addConstraint(Sketcher.Constraint("DistanceY", 1, 3, 4, 3, Q("2.8 in")))
sketch8.setExpression("Constraints[10]", "Params.sketch8_diameter")
pocket6 = doc.addObject("PartDesign::Pocket", "Pocket005")
body.addObject(pocket6)
pocket6.Profile = sketch8
pocket6.setExpression("Length", "Params.pocket6_length")
pocket6.Reversed = True

sketch9 = doc.addObject("Sketcher::SketchObject", "Sketch008")
body.addObject(sketch9)
sketch9.AttachmentSupport = (doc.XZ_Plane, [""])
sketch9.MapMode = "FlatFace"
sketch9.addGeometry(Part.Circle(Vector(-69.85, 44.45, 0), Vector(0, 0, 1), 3.25), False)
sketch9.addGeometry(Part.Circle(Vector(69.85, 44.45, 0), Vector(0, 0, 1), 3.25), False)
sketch9.addGeometry(Part.Circle(Vector(69.85, -44.45, 0), Vector(0, 0, 1), 3.25), False)
sketch9.addGeometry(Part.Circle(Vector(-69.85, -44.45, 0), Vector(0, 0, 1), 3.25), False)
sketch9.addConstraint(Sketcher.Constraint("Equal", 0, 1))
sketch9.addConstraint(Sketcher.Constraint("Equal", 1, 2))
sketch9.addConstraint(Sketcher.Constraint("Equal", 2, 3))
sketch9.addConstraint(Sketcher.Constraint("Symmetric", 0, 3, 2, 3, -1, 1))
sketch9.addConstraint(Sketcher.Constraint("Symmetric", 1, 3, 3, 3, -1, 1))
sketch9.addConstraint(Sketcher.Constraint("Symmetric", 0, 3, 1, 3, -2))
sketch9.addConstraint(Sketcher.Constraint("DistanceX", 0, 3, 1, 3, Q("5.5 in")))
sketch9.addConstraint(Sketcher.Constraint("DistanceY", 2, 3, 1, 3, Q("3.5 in")))
sketch9.addConstraint(Sketcher.Constraint("Diameter", 0, Q("6.5 mm")))
pocket7 = doc.addObject("PartDesign::Pocket", "Pocket006")
body.addObject(pocket7)
pocket7.Profile = sketch9
pocket7.setExpression("Length", "Params.pocket7_length")
doc.recompute()

chamfer = doc.addObject("PartDesign::Chamfer", "Chamfer")
body.addObject(chamfer)
chamfer.Base = (pocket7, edges_at(pocket7, [(62.28, 14.18, 55.88)]))
chamfer.setExpression("Size", "Params.chamfer_size")

sketch10 = doc.addObject("Sketcher::SketchObject", "Sketch009")
body.addObject(sketch10)
sketch10.AttachmentSupport = (doc.XZ_Plane, [""])
sketch10.MapMode = "FlatFace"
sketch10.AttachmentOffset = App.Placement(Vector(0, 0, -18), App.Rotation())
sketch10.addGeometry(Part.Circle(Vector(-76.2, -50.8, 0), Vector(0, 0, 1), 1.524), False)
sketch10.addConstraint(Sketcher.Constraint("Diameter", 0, Q("0.12 in")))
sketch10.addConstraint(Sketcher.Constraint("DistanceX", 0, 3, -1, 1, Q("3 in")))
sketch10.addConstraint(Sketcher.Constraint("DistanceY", 0, 3, -1, 1, Q("2 in")))
sketch10.setExpression("Constraints[0]", "Params.sketch10_diameter")
pocket8 = doc.addObject("PartDesign::Pocket", "Pocket007")
body.addObject(pocket8)
pocket8.Profile = sketch10
pocket8.setExpression("Length", "Params.pocket8_length")
pocket8.Reversed = True
doc.recompute()

mirrored = doc.addObject("PartDesign::Mirrored", "Mirrored")
body.addObject(mirrored)
mirrored.Originals = [pocket8]
mirrored.MirrorPlane = (doc.XY_Plane, [""])
body.Tip = mirrored
doc.recompute()

mirrored2 = doc.addObject("PartDesign::Mirrored", "Mirrored001")
body.addObject(mirrored2)
mirrored2.Originals = [pocket8]
mirrored2.MirrorPlane = (doc.YZ_Plane, [""])
body.Tip = mirrored2

sketch11 = doc.addObject("Sketcher::SketchObject", "Sketch010")
body.addObject(sketch11)
sketch11.AttachmentSupport = (doc.XZ_Plane, [""])
sketch11.MapMode = "FlatFace"
sketch11.AttachmentOffset = App.Placement(Vector(0, 0, -18), App.Rotation())
sketch11.addGeometry(Part.Circle(Vector(76.2, 50.8, 0), Vector(0, 0, 1), 1.524), False)
sketch11.addConstraint(Sketcher.Constraint("Diameter", 0, Q("0.12 in")))
sketch11.addConstraint(Sketcher.Constraint("DistanceX", -1, 1, 0, 3, Q("3 in")))
sketch11.addConstraint(Sketcher.Constraint("DistanceY", -1, 1, 0, 3, Q("2 in")))
sketch11.setExpression("Constraints[0]", "Params.sketch11_diameter")
pocket9 = doc.addObject("PartDesign::Pocket", "Pocket008")
body.addObject(pocket9)
pocket9.Profile = sketch11
pocket9.setExpression("Length", "Params.pocket9_length")
pocket9.Reversed = True
doc.recompute()

fillet2 = doc.addObject("PartDesign::Fillet", "Fillet001")
body.addObject(fillet2)
fillet2.Base = (pocket9, edges_at(pocket9, [
    (-76.2, 18, -52.324),
    (-76.2, 18, 52.324),
    (76.2, 18, -52.324),
    (76.2, 18, 52.324),
]))
fillet2.setExpression("Radius", "Params.fillet2_radius")
doc.recompute()

chamfer2 = doc.addObject("PartDesign::Chamfer", "Chamfer001")
body.addObject(chamfer2)
chamfer2.Base = (fillet2, edges_at(fillet2, [
    (25.988, 12, 53.657),
    (3.89, 12, 53.657),
    (-8.81, 12, 53.657),
    (-27.86, 12, 53.657),
    (-40.306, 12, 53.657),
    (-53.26, 12, 53.657),
    (-65.96, 12, 53.657),
]))
chamfer2.setExpression("Size", "Params.chamfer2_size")

sketch12 = doc.addObject("Sketcher::SketchObject", "Sketch011")
body.addObject(sketch12)
sketch12.AttachmentSupport = (doc.XY_Plane, [""])
sketch12.MapMode = "FlatFace"
sketch12.AttachmentOffset = App.Placement(Vector(0, 0, 2.025 * 25.4), App.Rotation())
sketch12.addGeometry(Part.LineSegment(Vector(56.7826, 28.5, 0), Vector(56.7826, 7.5, 0)), False)
sketch12.addGeometry(Part.LineSegment(Vector(56.7826, 7.5, 0), Vector(35.7826, 7.5, 0)), False)
sketch12.addGeometry(Part.LineSegment(Vector(35.7826, 7.5, 0), Vector(35.7826, 28.5, 0)), False)
sketch12.addGeometry(Part.LineSegment(Vector(35.7826, 28.5, 0), Vector(56.7826, 28.5, 0)), False)
sketch12.addConstraint(Sketcher.Constraint("Coincident", 0, 2, 1, 1))
sketch12.addConstraint(Sketcher.Constraint("Coincident", 1, 2, 2, 1))
sketch12.addConstraint(Sketcher.Constraint("Coincident", 2, 2, 3, 1))
sketch12.addConstraint(Sketcher.Constraint("Coincident", 3, 2, 0, 1))
sketch12.addConstraint(Sketcher.Constraint("Vertical", 0))
sketch12.addConstraint(Sketcher.Constraint("Horizontal", 1))
sketch12.addConstraint(Sketcher.Constraint("Vertical", 2))
sketch12.addConstraint(Sketcher.Constraint("Horizontal", 3))
sketch12.addConstraint(Sketcher.Constraint("Equal", 3, 0))
sketch12.addConstraint(Sketcher.Constraint("DistanceX", 1, 2, 1, 1, Q("21 mm")))
sketch12.addConstraint(Sketcher.Constraint("DistanceX", -1, 1, 0, 2, Q("56.7826 mm")))
sketch12.addConstraint(Sketcher.Constraint("DistanceY", -1, 1, 0, 2, Q("7.5 mm")))
pocket10 = doc.addObject("PartDesign::Pocket", "Pocket009")
body.addObject(pocket10)
pocket10.Profile = sketch12
pocket10.setExpression("Length", "Params.pocket10_length")
pocket10.Reversed = True

sketch13 = doc.addObject("Sketcher::SketchObject", "Sketch012")
body.addObject(sketch13)
sketch13.AttachmentSupport = (doc.XZ_Plane, [""])
sketch13.MapMode = "FlatFace"
sketch13.addGeometry(Part.LineSegment(Vector(-13.103426, 23.726354, 0), Vector(-11.622441, 27.048504, 0)), False)
sketch13.addGeometry(Part.LineSegment(Vector(-11.622441, 27.048504, 0), Vector(-13.759015, 29.99215, 0)), False)
sketch13.addGeometry(Part.LineSegment(Vector(-13.759015, 29.99215, 0), Vector(-17.376574, 29.613646, 0)), False)
sketch13.addGeometry(Part.LineSegment(Vector(-17.376574, 29.613646, 0), Vector(-18.857559, 26.291496, 0)), False)
sketch13.addGeometry(Part.LineSegment(Vector(-18.857559, 26.291496, 0), Vector(-16.720985, 23.34785, 0)), False)
sketch13.addGeometry(Part.LineSegment(Vector(-16.720985, 23.34785, 0), Vector(-13.103426, 23.726354, 0)), False)
sketch13.addGeometry(Part.LineSegment(Vector(2.927612, -46.608492, 0), Vector(3.333115, -42.99386, 0)), False)
sketch13.addGeometry(Part.LineSegment(Vector(3.333115, -42.99386, 0), Vector(0.405503, -40.835368, 0)), False)
sketch13.addGeometry(Part.LineSegment(Vector(0.405503, -40.835368, 0), Vector(-2.927612, -42.291508, 0)), False)
sketch13.addGeometry(Part.LineSegment(Vector(-2.927612, -42.291508, 0), Vector(-3.333115, -45.90614, 0)), False)
sketch13.addGeometry(Part.LineSegment(Vector(-3.333115, -45.90614, 0), Vector(-0.405503, -48.064632, 0)), False)
sketch13.addGeometry(Part.LineSegment(Vector(-0.405503, -48.064632, 0), Vector(2.927612, -46.608492, 0)), False)
sketch13.addConstraint(Sketcher.Constraint("Coincident", 0, 2, 1, 1))
sketch13.addConstraint(Sketcher.Constraint("Coincident", 1, 2, 2, 1))
sketch13.addConstraint(Sketcher.Constraint("Coincident", 2, 2, 3, 1))
sketch13.addConstraint(Sketcher.Constraint("Coincident", 3, 2, 4, 1))
sketch13.addConstraint(Sketcher.Constraint("Coincident", 4, 2, 5, 1))
sketch13.addConstraint(Sketcher.Constraint("Coincident", 5, 2, 0, 1))
sketch13.addConstraint(Sketcher.Constraint("Coincident", 6, 2, 7, 1))
sketch13.addConstraint(Sketcher.Constraint("Coincident", 7, 2, 8, 1))
sketch13.addConstraint(Sketcher.Constraint("Coincident", 8, 2, 9, 1))
sketch13.addConstraint(Sketcher.Constraint("Coincident", 9, 2, 10, 1))
sketch13.addConstraint(Sketcher.Constraint("Coincident", 10, 2, 11, 1))
sketch13.addConstraint(Sketcher.Constraint("Coincident", 11, 2, 6, 1))
sketch13.addConstraint(Sketcher.Constraint("Parallel", 0, 3))
sketch13.addConstraint(Sketcher.Constraint("Parallel", 1, 4))
sketch13.addConstraint(Sketcher.Constraint("Parallel", 2, 5))
sketch13.addConstraint(Sketcher.Constraint("Parallel", 6, 9))
sketch13.addConstraint(Sketcher.Constraint("Parallel", 7, 10))
sketch13.addConstraint(Sketcher.Constraint("Parallel", 8, 11))
sketch13.addConstraint(Sketcher.Constraint("Equal", 0, 1))
sketch13.addConstraint(Sketcher.Constraint("Equal", 1, 2))
sketch13.addConstraint(Sketcher.Constraint("Equal", 2, 3))
sketch13.addConstraint(Sketcher.Constraint("Equal", 5, 6))
sketch13.addConstraint(Sketcher.Constraint("Equal", 6, 7))
sketch13.addConstraint(Sketcher.Constraint("Equal", 7, 8))
sketch13.addConstraint(Sketcher.Constraint("Equal", 8, 9))
sketch13.addConstraint(Sketcher.Constraint("DistanceY", 7, 2, 5, 2, Q("2.5418001 in")))
sketch13.addConstraint(Sketcher.Constraint("DistanceY", 4, 2, 1, 2, Q("6.644301 mm")))
sketch13.addConstraint(Sketcher.Constraint("DistanceX", 4, 2, 6, 2, Q("20.0541 mm")))
sketch13.addConstraint(Sketcher.Constraint("DistanceX", 0, 2, -1, 1, Q("11.622441 mm")))
sketch13.addConstraint(Sketcher.Constraint("DistanceY", -1, 1, 1, 2, Q("29.99215 mm")))
sketch13.addConstraint(Sketcher.Constraint("DistanceX", 3, 2, -1, 1, Q("18.857559 mm")))
sketch13.addConstraint(Sketcher.Constraint("DistanceY", 6, 2, -1, 1, Q("42.99386 mm")))
sketch13.addConstraint(Sketcher.Constraint("DistanceX", 8, 2, -1, 1, Q("2.927612 mm")))
sketch13.addConstraint(Sketcher.Constraint("DistanceY", 9, 2, -1, 1, Q("45.90614 mm")))
sketch13.addConstraint(Sketcher.Constraint("DistanceX", -1, 1, 11, 2, Q("2.927612 mm")))
sketch13.addConstraint(Sketcher.Constraint("DistanceX", 2, 2, 1, 2, Q("3.617559 mm")))
pocket11 = doc.addObject("PartDesign::Pocket", "Pocket010")
body.addObject(pocket11)
pocket11.Profile = sketch13
pocket11.setExpression("Length", "Params.pocket11_length")

doc.recompute()
